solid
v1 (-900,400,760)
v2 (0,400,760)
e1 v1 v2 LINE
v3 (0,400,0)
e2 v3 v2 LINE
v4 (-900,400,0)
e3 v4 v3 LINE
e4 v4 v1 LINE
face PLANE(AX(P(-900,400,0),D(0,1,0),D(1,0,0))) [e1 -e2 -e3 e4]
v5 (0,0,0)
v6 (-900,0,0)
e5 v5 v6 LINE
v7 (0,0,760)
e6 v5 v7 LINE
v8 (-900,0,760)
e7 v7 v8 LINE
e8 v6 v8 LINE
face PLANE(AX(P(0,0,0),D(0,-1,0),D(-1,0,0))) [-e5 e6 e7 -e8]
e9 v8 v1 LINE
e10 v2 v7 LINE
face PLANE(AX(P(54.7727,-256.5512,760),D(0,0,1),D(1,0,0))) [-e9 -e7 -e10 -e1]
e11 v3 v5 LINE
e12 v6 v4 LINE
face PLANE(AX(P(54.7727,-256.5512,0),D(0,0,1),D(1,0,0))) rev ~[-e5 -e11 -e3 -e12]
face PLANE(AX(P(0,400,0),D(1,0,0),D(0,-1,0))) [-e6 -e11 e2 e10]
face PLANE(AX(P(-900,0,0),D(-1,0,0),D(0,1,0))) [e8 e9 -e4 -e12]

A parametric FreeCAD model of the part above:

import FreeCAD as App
import Part
import Sketcher


def add_polygon(sketch, points):
    """Adds a closed chain of lines whose ends are joined by coincident constraints."""
    first, n = sketch.GeometryCount, len(points)
    for a, b in zip(points, points[1:] + points[:1]):
        sketch.addGeometry(Part.LineSegment(App.Vector(*a, 0), App.Vector(*b, 0)), False)
    for i in range(n):
        sketch.addConstraint(Sketcher.Constraint("Coincident", first + i, 2, first + (i + 1) % n, 1))

doc = App.newDocument("Part")
body = doc.addObject("PartDesign::Body", "Body")

# Sketch on XY plane
sketch1 = body.newObject("Sketcher::SketchObject", "Sketch")
sketch1.AttachmentSupport = (doc.getObject("XY_Plane"), [""])
sketch1.MapMode = "FlatFace"
add_polygon(sketch1, [(-900, 0), (0, 0), (0, 400), (-900, 400)])  # lines 0-3
sketch1.addConstraint(Sketcher.Constraint("Horizontal", 0))
sketch1.addConstraint(Sketcher.Constraint("Vertical", 1))
sketch1.addConstraint(Sketcher.Constraint("Horizontal", 2))
sketch1.addConstraint(Sketcher.Constraint("Vertical", 3))
sketch1.addConstraint(Sketcher.Constraint("Coincident", 0, 2, -1, 1))
sketch1.addConstraint(Sketcher.Constraint("DistanceX", 0, 1, 0, 2, 900.0))
sketch1.addConstraint(Sketcher.Constraint("DistanceY", 1, 1, 1, 2, 400.0))
pad1 = body.newObject("PartDesign::Pad", "Pad")
pad1.Profile = sketch1
pad1.Length = 760

doc.recompute()
